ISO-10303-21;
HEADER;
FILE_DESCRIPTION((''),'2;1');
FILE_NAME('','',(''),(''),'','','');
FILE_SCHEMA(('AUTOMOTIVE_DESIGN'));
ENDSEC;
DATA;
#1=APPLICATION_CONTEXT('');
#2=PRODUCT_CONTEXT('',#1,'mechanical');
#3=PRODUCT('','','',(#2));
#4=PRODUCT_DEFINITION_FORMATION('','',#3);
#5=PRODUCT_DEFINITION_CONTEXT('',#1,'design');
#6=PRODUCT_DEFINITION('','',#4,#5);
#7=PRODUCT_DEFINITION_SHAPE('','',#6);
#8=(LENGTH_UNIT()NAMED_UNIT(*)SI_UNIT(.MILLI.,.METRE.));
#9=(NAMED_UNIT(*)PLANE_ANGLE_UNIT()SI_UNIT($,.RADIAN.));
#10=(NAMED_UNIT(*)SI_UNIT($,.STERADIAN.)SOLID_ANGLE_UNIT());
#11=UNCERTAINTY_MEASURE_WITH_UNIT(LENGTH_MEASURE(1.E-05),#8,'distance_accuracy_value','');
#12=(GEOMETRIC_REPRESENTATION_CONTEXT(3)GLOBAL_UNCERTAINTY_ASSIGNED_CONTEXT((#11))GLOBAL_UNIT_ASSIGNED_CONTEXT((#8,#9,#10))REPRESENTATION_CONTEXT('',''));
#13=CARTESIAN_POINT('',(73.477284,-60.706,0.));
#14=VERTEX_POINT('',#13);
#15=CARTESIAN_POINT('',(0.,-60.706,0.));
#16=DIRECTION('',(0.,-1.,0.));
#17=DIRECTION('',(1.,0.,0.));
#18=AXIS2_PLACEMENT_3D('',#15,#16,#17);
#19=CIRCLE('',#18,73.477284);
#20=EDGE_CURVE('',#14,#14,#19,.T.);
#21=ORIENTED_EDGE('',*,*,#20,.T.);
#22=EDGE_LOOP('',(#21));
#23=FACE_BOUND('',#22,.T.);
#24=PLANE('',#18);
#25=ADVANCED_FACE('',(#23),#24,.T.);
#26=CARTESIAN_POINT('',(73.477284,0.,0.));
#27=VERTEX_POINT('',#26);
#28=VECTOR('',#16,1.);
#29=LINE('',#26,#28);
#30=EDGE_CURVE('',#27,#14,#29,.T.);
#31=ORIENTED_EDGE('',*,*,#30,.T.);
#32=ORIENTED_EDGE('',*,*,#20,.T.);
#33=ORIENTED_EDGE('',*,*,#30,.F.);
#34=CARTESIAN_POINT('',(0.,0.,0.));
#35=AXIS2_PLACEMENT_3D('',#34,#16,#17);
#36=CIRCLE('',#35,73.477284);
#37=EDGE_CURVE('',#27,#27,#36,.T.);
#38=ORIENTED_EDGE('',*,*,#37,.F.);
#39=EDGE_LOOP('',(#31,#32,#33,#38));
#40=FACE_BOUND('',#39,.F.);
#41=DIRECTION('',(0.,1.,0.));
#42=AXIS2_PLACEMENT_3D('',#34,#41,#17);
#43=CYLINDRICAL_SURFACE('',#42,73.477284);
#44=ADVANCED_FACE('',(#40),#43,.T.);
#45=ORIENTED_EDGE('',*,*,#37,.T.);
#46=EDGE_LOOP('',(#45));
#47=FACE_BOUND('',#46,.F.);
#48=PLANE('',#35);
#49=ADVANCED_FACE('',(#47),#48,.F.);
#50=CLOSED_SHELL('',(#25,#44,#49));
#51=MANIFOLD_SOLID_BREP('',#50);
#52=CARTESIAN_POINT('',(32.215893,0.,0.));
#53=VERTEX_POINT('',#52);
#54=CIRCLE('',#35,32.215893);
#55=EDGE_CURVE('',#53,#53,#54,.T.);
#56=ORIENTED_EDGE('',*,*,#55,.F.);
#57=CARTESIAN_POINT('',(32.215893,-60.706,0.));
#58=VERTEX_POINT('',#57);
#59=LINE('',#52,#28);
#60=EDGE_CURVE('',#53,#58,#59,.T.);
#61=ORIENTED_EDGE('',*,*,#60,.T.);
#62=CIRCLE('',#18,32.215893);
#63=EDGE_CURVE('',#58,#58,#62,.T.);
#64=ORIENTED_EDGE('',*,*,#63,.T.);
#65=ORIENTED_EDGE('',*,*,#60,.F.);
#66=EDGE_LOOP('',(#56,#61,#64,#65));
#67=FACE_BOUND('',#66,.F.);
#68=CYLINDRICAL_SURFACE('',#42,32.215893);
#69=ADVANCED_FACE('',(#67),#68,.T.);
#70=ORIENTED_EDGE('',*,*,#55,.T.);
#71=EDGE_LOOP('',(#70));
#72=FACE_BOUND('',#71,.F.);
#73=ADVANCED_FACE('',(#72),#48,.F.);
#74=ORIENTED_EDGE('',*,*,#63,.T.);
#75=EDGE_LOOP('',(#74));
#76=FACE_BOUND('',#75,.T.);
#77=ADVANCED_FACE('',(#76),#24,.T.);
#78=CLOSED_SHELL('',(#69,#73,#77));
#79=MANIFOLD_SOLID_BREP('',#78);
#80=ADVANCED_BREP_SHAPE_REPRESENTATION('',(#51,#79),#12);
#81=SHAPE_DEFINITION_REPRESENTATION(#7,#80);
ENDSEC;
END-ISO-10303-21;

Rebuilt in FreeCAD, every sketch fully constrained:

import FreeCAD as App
import Part
import Sketcher
Q = App.Units.Quantity

doc = App.newDocument("Part")
body = doc.addObject("PartDesign::Body", "Body")

# Sketch on XZ plane
sketch1 = body.newObject("Sketcher::SketchObject", "Sketch")
sketch1.AttachmentSupport = (doc.getObject("XZ_Plane"), [""])
sketch1.MapMode = "FlatFace"
sketch1.addGeometry(Part.Circle(App.Vector(0, 0, 0), App.Vector(0, 0, 1), 32.215893), False)
sketch1.addConstraint([
    Sketcher.Constraint("Coincident", 0, 3, -1, 1),
    Sketcher.Constraint("Diameter", 0, Q("64.431785 mm")),
])
pad1 = body.newObject("PartDesign::Pad", "Pad")
pad1.Profile = sketch1
pad1.Length = Q("2.39 in")
body2 = doc.addObject("PartDesign::Body", "Body001")

# Sketch on XZ plane
sketch2 = body2.newObject("Sketcher::SketchObject", "Sketch001")
sketch2.AttachmentSupport = (doc.getObject("XZ_Plane001"), [""])
sketch2.MapMode = "FlatFace"
sketch2.addGeometry(Part.Circle(App.Vector(0, 0, 0), App.Vector(0, 0, 1), 73.477284), False)
sketch2.addConstraint([
    Sketcher.Constraint("Coincident", 0, 3, -1, 1),
    Sketcher.Constraint("Diameter", 0, Q("146.954569 mm")),
])
pad2 = body2.newObject("PartDesign::Pad", "Pad001")
pad2.Profile = sketch2
pad2.Length = Q("2.39 in")

doc.recompute()
